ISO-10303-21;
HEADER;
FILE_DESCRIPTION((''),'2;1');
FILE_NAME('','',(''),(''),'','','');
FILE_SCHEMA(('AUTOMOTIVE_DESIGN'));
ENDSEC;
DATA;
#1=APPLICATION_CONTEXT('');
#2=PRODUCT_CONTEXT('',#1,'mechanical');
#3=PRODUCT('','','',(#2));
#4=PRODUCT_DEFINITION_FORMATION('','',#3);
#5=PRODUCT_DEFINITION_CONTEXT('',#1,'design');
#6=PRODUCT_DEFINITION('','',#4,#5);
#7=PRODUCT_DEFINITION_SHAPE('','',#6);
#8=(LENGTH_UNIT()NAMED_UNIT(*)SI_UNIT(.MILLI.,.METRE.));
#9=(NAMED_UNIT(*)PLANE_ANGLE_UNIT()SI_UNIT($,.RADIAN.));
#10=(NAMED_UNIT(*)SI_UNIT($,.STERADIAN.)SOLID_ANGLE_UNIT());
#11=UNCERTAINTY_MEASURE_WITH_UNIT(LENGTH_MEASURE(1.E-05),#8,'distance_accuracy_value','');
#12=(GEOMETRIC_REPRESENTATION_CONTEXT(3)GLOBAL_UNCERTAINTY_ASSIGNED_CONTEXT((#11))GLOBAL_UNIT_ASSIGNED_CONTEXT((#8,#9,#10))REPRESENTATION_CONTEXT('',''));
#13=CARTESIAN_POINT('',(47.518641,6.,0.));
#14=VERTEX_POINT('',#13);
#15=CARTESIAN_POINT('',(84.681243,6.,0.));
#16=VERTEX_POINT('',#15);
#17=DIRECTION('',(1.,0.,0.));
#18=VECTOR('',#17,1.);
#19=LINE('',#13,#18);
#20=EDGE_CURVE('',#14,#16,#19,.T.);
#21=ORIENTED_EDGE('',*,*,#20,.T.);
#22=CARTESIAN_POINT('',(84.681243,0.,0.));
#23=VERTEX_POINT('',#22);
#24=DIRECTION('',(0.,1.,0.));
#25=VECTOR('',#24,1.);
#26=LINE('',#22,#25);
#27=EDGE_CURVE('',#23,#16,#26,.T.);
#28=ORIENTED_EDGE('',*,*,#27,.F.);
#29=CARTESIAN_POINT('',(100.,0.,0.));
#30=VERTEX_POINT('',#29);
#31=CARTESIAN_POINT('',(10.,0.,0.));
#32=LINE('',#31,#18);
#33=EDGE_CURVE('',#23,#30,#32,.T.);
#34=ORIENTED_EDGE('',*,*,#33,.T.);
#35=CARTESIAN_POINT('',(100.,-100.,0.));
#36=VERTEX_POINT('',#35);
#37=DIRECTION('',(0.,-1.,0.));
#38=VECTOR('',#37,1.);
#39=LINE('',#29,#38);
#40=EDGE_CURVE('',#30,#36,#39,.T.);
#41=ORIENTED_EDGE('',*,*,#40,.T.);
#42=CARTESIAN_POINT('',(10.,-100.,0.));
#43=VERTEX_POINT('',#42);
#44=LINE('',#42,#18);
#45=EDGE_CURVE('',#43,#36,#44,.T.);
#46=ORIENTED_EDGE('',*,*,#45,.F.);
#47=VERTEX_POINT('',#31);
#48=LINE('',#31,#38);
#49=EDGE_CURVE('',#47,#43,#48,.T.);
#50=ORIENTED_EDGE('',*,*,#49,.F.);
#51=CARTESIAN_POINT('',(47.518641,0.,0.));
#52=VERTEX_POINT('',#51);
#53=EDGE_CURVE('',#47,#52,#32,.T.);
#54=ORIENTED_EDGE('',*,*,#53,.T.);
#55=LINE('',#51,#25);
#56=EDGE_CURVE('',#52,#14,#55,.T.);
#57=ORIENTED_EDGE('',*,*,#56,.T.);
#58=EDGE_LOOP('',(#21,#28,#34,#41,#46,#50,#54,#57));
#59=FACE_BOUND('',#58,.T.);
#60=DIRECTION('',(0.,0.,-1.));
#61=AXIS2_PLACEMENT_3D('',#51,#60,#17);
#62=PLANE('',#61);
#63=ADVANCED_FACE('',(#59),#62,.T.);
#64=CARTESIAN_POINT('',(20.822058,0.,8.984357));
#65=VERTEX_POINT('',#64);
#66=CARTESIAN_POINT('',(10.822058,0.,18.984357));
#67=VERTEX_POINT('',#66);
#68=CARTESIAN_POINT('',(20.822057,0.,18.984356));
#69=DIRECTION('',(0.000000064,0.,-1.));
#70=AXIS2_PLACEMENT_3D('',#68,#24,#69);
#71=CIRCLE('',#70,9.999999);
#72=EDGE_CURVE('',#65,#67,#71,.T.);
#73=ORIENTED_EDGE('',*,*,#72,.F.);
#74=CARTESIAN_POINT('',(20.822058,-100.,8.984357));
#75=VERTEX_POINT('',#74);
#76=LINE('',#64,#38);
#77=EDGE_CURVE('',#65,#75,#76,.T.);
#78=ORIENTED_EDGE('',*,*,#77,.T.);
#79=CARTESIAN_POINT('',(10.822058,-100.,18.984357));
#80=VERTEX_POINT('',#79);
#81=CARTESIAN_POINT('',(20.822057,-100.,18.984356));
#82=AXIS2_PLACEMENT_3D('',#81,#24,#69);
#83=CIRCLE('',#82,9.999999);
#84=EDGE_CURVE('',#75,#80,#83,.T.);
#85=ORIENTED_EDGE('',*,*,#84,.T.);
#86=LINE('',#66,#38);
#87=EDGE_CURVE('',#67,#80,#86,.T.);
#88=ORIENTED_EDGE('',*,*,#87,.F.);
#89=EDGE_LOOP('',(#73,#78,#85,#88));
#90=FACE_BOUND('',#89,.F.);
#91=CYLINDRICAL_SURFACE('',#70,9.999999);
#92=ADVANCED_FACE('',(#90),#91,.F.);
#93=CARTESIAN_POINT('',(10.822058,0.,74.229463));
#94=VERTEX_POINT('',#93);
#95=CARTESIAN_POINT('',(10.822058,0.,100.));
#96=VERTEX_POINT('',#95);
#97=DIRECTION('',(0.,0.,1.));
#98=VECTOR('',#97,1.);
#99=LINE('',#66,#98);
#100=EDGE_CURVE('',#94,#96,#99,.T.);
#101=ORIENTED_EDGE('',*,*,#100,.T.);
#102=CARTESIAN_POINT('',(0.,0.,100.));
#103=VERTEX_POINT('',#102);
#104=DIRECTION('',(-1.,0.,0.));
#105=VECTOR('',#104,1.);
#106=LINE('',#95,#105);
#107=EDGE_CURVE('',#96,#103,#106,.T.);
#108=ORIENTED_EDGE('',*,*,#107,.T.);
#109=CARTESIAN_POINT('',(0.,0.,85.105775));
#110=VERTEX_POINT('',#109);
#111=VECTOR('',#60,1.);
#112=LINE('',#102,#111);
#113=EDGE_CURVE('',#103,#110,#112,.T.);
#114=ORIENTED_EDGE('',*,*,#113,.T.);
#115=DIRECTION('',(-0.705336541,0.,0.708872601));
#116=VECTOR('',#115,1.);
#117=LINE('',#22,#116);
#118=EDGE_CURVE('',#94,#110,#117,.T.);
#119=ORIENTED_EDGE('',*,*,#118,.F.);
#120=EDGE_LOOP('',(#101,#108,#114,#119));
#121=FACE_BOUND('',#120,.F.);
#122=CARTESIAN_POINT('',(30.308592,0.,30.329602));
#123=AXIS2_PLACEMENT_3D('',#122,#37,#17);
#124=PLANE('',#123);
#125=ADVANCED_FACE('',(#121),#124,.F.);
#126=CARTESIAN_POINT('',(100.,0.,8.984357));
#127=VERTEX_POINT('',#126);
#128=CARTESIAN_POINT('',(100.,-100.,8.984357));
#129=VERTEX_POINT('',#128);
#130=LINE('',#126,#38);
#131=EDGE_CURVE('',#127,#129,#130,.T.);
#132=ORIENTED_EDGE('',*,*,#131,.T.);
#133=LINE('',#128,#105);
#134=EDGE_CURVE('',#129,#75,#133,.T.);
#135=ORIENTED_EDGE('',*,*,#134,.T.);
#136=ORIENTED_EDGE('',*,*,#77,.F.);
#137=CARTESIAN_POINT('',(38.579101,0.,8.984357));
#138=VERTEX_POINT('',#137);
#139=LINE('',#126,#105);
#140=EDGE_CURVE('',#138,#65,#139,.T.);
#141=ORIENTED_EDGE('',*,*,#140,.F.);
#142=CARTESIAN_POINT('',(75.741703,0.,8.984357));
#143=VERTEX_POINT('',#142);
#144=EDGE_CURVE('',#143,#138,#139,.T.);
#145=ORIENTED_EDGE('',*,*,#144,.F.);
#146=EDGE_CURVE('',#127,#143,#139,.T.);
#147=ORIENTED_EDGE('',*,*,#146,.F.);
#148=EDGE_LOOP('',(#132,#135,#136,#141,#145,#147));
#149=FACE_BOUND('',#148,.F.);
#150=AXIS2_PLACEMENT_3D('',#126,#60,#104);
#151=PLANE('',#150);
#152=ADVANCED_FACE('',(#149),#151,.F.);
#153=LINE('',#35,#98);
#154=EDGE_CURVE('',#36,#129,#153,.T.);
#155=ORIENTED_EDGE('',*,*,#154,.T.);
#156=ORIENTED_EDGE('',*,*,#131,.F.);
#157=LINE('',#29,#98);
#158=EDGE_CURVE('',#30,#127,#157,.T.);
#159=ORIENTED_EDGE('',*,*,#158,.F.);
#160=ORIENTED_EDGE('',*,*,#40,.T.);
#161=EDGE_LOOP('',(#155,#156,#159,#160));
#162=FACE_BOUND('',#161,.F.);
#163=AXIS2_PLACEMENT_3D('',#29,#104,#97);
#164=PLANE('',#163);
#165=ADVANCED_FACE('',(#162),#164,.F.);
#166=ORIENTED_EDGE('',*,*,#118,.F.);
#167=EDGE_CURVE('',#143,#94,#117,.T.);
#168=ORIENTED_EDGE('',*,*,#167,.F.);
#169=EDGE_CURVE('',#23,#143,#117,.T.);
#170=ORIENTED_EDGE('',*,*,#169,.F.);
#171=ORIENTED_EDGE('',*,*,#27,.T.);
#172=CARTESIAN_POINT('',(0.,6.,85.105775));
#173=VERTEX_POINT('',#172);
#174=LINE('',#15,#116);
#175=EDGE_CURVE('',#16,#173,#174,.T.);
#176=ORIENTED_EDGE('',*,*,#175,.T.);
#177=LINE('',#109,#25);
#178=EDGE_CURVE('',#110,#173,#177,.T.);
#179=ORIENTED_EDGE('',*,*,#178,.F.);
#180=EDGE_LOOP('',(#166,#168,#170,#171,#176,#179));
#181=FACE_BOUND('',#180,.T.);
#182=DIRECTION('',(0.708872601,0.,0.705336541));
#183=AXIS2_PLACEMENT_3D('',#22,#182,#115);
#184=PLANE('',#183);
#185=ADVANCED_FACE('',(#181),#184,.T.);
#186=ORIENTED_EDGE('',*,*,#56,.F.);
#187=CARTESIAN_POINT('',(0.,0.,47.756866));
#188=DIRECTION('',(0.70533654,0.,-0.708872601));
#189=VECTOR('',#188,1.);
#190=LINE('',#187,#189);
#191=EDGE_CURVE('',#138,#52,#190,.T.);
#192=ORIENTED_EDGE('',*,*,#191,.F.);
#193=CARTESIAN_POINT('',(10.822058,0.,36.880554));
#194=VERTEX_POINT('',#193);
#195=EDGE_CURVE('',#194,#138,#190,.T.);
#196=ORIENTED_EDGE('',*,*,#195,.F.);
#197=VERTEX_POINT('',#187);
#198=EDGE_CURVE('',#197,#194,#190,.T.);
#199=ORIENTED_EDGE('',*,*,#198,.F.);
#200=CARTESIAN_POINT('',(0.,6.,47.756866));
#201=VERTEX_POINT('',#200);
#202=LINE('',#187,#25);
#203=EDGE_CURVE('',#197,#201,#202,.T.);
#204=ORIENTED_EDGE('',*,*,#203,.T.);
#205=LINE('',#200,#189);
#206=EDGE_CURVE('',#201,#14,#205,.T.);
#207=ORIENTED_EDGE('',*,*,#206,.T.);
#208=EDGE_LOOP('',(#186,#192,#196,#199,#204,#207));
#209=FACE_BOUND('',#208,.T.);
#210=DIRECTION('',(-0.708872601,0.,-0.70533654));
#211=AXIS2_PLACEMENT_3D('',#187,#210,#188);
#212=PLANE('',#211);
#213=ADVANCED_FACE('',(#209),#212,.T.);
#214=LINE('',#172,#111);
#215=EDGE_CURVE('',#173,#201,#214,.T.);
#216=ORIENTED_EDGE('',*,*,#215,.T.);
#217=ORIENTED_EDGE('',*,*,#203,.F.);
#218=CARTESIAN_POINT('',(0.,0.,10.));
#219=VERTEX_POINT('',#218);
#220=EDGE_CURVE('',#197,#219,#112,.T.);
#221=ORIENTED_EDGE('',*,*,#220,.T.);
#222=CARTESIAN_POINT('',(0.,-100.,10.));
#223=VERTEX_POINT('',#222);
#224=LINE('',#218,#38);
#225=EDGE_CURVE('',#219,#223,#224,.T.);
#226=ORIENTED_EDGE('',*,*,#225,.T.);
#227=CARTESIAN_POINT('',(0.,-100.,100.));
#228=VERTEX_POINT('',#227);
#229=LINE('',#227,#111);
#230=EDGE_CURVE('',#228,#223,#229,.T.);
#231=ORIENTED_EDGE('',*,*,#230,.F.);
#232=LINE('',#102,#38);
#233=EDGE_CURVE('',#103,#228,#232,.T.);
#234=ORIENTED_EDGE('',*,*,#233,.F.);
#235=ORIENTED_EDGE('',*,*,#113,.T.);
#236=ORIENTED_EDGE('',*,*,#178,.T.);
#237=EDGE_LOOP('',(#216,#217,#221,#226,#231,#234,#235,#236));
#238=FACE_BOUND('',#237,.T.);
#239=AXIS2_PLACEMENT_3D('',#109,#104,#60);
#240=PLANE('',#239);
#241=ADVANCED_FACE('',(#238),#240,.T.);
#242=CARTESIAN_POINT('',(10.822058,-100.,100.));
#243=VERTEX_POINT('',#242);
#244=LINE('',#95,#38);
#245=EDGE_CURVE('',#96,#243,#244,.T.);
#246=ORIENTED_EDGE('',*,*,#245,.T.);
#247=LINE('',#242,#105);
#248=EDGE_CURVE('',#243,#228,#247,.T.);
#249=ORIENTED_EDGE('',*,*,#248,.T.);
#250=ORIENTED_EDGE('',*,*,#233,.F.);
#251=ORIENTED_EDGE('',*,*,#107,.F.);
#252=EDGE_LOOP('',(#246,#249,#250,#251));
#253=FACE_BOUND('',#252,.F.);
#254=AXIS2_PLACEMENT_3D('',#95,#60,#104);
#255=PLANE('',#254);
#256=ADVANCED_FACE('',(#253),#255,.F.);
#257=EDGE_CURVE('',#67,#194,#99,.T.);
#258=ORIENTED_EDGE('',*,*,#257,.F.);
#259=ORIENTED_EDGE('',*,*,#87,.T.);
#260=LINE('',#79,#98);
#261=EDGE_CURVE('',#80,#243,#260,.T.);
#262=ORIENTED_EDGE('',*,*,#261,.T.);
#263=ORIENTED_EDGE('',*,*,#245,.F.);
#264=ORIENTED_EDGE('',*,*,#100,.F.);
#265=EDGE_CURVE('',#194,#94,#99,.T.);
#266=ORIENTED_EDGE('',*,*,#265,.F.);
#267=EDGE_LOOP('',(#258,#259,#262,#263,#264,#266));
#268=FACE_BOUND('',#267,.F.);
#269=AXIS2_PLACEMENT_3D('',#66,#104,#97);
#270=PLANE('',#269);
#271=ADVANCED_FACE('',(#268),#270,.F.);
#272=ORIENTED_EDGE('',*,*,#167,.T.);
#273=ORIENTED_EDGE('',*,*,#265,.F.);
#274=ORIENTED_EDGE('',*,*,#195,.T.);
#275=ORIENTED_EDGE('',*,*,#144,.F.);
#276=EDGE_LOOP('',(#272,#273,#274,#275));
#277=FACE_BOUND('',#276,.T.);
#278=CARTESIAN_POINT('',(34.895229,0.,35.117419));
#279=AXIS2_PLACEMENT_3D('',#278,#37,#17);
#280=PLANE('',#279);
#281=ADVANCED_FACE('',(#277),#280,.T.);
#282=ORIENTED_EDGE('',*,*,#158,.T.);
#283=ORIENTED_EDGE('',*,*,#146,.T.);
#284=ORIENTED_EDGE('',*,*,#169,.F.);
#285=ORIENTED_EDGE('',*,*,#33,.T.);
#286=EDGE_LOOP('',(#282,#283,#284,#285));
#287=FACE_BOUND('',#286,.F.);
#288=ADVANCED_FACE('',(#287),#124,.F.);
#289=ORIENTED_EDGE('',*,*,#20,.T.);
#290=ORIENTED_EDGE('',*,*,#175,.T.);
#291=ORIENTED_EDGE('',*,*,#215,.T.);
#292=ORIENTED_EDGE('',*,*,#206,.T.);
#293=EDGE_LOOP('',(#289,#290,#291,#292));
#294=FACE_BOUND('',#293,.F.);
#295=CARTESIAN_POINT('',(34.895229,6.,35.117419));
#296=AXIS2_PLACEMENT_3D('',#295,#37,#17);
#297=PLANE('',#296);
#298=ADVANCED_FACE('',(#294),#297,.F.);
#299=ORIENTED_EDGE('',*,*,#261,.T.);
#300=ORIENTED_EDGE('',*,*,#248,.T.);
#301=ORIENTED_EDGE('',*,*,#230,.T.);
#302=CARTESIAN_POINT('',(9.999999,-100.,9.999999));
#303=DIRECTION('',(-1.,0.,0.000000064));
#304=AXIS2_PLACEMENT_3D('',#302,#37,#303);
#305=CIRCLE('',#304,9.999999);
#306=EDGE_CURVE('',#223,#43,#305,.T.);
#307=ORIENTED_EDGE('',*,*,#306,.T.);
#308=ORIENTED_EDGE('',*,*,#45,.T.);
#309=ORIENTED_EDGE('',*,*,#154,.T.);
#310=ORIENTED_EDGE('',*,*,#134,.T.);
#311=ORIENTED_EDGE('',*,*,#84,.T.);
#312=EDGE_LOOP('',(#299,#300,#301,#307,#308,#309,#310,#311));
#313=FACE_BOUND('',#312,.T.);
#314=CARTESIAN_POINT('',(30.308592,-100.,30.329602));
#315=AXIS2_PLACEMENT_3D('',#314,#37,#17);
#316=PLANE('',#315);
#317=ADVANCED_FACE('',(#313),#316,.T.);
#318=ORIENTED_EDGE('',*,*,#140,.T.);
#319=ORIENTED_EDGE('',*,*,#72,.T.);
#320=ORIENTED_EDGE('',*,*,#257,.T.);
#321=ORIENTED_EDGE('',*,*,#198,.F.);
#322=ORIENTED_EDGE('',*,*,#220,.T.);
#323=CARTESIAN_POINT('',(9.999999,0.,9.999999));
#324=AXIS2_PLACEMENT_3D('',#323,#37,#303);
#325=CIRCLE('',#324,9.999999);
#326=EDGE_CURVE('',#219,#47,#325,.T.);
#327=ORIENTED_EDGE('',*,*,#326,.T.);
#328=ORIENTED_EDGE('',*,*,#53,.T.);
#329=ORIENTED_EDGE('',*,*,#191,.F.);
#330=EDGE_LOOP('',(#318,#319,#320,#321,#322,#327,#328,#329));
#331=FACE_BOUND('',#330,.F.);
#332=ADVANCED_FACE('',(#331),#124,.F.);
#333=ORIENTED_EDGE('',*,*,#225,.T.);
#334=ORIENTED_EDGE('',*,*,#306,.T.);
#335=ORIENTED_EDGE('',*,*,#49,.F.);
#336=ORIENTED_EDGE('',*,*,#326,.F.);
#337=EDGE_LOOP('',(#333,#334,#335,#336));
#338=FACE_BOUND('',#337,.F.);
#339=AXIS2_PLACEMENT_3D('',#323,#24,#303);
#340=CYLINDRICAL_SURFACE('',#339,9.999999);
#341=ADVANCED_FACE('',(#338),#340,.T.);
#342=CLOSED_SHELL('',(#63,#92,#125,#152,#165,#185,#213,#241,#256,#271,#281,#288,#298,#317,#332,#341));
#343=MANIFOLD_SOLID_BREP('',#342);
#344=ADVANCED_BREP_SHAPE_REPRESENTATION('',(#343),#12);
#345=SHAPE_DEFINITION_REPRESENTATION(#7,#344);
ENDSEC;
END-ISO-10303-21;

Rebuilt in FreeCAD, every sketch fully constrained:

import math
import FreeCAD as App
import Part
import Sketcher

V = App.Vector

doc = App.newDocument("Part")
body = doc.addObject("PartDesign::Body", "Body")

# Sketch on XZ plane
sketch1 = body.newObject("Sketcher::SketchObject", "Sketch")
sketch1.AttachmentSupport = (doc.getObject("XZ_Plane"), [""])
sketch1.MapMode = "FlatFace"
sketch1.addGeometry([
    Part.LineSegment(V(11, 100, 0), V(0, 100, 0)),  # 0
    Part.LineSegment(V(0, 100, 0), V(0, 10, 0)),  # 1
    Part.ArcOfCircle(Part.Circle(V(10, 10, 0), V(0, 0, 1), 10), math.radians(180), math.radians(270)),  # 2
    Part.LineSegment(V(10, 0, 0), V(100, 0, 0)),  # 3
    Part.LineSegment(V(100, 0, 0), V(100, 9, 0)),  # 4
    Part.LineSegment(V(100, 9, 0), V(21, 9, 0)),  # 5
    Part.ArcOfCircle(Part.Circle(V(21, 19, 0), V(0, 0, 1), 10), math.radians(180), math.radians(270)),  # 6
    Part.LineSegment(V(11, 19, 0), V(11, 100, 0)),  # 7
], False)
sketch1.addConstraint([
    Sketcher.Constraint("Coincident", 0, 2, 1, 1),
    Sketcher.Constraint("Tangent", 1, 2, 2, 1),
    Sketcher.Constraint("Tangent", 2, 2, 3, 1),
    Sketcher.Constraint("Coincident", 3, 2, 4, 1),
    Sketcher.Constraint("Coincident", 4, 2, 5, 1),
    Sketcher.Constraint("Tangent", 5, 2, 6, 2),
    Sketcher.Constraint("Tangent", 6, 1, 7, 1),
    Sketcher.Constraint("Coincident", 7, 2, 0, 1),
    Sketcher.Constraint("Horizontal", 0),
    Sketcher.Constraint("Vertical", 1),
    Sketcher.Constraint("Horizontal", 3),
    Sketcher.Constraint("Vertical", 4),
    Sketcher.Constraint("Horizontal", 5),
    Sketcher.Constraint("Vertical", 7),
    Sketcher.Constraint("Equal", 2, 6),
    Sketcher.Constraint("PointOnObject", 0, 2, -2),
    Sketcher.Constraint("PointOnObject", 2, 2, -1),
    Sketcher.Constraint("Equal", 3, 1),
    Sketcher.Constraint("Radius", 2, 9.999999),
    Sketcher.Constraint("DistanceX", 3, 1, 3, 2, 90.0),
    Sketcher.Constraint("DistanceX", 5, 2, 5, 1, 79.177942),
    Sketcher.Constraint("DistanceY", 4, 1, 4, 2, 8.984357),
])
pad1 = body.newObject("PartDesign::Pad", "Pad")
pad1.Profile = sketch1
pad1.Length = 100

# Sketch on XZ plane
sketch2 = body.newObject("Sketcher::SketchObject", "Sketch001")
sketch2.AttachmentSupport = (doc.getObject("XZ_Plane"), [""])
sketch2.MapMode = "FlatFace"
sketch2.addGeometry([
    Part.LineSegment(V(48, 0, 0), V(85, 0, 0)),
    Part.LineSegment(V(85, 0, 0), V(0, 85, 0)),
    Part.LineSegment(V(0, 85, 0), V(0, 48, 0)),
    Part.LineSegment(V(0, 48, 0), V(48, 0, 0)),
], False)
sketch2.addConstraint([
    Sketcher.Constraint("Coincident", 0, 2, 1, 1),
    Sketcher.Constraint("Coincident", 1, 2, 2, 1),
    Sketcher.Constraint("Coincident", 2, 2, 3, 1),
    Sketcher.Constraint("Coincident", 3, 2, 0, 1),
    Sketcher.Constraint("Horizontal", 0),
    Sketcher.Constraint("Vertical", 2),
    Sketcher.Constraint("PointOnObject", 0, 2, -1),
    Sketcher.Constraint("PointOnObject", 1, 2, -2),
    Sketcher.Constraint("Parallel", 1, 3),
    Sketcher.Constraint("DistanceX", 0, 1, 0, 2, 37.162602),
    Sketcher.Constraint("DistanceY", 2, 2, 2, 1, 37.348909),
    Sketcher.Constraint("DistanceX", -1, 1, 3, 2, 47.518641),
])
pad2 = body.newObject("PartDesign::Pad", "Pad001")
pad2.Profile = sketch2
pad2.Length = 6
pad2.Reversed = True

doc.recompute()
